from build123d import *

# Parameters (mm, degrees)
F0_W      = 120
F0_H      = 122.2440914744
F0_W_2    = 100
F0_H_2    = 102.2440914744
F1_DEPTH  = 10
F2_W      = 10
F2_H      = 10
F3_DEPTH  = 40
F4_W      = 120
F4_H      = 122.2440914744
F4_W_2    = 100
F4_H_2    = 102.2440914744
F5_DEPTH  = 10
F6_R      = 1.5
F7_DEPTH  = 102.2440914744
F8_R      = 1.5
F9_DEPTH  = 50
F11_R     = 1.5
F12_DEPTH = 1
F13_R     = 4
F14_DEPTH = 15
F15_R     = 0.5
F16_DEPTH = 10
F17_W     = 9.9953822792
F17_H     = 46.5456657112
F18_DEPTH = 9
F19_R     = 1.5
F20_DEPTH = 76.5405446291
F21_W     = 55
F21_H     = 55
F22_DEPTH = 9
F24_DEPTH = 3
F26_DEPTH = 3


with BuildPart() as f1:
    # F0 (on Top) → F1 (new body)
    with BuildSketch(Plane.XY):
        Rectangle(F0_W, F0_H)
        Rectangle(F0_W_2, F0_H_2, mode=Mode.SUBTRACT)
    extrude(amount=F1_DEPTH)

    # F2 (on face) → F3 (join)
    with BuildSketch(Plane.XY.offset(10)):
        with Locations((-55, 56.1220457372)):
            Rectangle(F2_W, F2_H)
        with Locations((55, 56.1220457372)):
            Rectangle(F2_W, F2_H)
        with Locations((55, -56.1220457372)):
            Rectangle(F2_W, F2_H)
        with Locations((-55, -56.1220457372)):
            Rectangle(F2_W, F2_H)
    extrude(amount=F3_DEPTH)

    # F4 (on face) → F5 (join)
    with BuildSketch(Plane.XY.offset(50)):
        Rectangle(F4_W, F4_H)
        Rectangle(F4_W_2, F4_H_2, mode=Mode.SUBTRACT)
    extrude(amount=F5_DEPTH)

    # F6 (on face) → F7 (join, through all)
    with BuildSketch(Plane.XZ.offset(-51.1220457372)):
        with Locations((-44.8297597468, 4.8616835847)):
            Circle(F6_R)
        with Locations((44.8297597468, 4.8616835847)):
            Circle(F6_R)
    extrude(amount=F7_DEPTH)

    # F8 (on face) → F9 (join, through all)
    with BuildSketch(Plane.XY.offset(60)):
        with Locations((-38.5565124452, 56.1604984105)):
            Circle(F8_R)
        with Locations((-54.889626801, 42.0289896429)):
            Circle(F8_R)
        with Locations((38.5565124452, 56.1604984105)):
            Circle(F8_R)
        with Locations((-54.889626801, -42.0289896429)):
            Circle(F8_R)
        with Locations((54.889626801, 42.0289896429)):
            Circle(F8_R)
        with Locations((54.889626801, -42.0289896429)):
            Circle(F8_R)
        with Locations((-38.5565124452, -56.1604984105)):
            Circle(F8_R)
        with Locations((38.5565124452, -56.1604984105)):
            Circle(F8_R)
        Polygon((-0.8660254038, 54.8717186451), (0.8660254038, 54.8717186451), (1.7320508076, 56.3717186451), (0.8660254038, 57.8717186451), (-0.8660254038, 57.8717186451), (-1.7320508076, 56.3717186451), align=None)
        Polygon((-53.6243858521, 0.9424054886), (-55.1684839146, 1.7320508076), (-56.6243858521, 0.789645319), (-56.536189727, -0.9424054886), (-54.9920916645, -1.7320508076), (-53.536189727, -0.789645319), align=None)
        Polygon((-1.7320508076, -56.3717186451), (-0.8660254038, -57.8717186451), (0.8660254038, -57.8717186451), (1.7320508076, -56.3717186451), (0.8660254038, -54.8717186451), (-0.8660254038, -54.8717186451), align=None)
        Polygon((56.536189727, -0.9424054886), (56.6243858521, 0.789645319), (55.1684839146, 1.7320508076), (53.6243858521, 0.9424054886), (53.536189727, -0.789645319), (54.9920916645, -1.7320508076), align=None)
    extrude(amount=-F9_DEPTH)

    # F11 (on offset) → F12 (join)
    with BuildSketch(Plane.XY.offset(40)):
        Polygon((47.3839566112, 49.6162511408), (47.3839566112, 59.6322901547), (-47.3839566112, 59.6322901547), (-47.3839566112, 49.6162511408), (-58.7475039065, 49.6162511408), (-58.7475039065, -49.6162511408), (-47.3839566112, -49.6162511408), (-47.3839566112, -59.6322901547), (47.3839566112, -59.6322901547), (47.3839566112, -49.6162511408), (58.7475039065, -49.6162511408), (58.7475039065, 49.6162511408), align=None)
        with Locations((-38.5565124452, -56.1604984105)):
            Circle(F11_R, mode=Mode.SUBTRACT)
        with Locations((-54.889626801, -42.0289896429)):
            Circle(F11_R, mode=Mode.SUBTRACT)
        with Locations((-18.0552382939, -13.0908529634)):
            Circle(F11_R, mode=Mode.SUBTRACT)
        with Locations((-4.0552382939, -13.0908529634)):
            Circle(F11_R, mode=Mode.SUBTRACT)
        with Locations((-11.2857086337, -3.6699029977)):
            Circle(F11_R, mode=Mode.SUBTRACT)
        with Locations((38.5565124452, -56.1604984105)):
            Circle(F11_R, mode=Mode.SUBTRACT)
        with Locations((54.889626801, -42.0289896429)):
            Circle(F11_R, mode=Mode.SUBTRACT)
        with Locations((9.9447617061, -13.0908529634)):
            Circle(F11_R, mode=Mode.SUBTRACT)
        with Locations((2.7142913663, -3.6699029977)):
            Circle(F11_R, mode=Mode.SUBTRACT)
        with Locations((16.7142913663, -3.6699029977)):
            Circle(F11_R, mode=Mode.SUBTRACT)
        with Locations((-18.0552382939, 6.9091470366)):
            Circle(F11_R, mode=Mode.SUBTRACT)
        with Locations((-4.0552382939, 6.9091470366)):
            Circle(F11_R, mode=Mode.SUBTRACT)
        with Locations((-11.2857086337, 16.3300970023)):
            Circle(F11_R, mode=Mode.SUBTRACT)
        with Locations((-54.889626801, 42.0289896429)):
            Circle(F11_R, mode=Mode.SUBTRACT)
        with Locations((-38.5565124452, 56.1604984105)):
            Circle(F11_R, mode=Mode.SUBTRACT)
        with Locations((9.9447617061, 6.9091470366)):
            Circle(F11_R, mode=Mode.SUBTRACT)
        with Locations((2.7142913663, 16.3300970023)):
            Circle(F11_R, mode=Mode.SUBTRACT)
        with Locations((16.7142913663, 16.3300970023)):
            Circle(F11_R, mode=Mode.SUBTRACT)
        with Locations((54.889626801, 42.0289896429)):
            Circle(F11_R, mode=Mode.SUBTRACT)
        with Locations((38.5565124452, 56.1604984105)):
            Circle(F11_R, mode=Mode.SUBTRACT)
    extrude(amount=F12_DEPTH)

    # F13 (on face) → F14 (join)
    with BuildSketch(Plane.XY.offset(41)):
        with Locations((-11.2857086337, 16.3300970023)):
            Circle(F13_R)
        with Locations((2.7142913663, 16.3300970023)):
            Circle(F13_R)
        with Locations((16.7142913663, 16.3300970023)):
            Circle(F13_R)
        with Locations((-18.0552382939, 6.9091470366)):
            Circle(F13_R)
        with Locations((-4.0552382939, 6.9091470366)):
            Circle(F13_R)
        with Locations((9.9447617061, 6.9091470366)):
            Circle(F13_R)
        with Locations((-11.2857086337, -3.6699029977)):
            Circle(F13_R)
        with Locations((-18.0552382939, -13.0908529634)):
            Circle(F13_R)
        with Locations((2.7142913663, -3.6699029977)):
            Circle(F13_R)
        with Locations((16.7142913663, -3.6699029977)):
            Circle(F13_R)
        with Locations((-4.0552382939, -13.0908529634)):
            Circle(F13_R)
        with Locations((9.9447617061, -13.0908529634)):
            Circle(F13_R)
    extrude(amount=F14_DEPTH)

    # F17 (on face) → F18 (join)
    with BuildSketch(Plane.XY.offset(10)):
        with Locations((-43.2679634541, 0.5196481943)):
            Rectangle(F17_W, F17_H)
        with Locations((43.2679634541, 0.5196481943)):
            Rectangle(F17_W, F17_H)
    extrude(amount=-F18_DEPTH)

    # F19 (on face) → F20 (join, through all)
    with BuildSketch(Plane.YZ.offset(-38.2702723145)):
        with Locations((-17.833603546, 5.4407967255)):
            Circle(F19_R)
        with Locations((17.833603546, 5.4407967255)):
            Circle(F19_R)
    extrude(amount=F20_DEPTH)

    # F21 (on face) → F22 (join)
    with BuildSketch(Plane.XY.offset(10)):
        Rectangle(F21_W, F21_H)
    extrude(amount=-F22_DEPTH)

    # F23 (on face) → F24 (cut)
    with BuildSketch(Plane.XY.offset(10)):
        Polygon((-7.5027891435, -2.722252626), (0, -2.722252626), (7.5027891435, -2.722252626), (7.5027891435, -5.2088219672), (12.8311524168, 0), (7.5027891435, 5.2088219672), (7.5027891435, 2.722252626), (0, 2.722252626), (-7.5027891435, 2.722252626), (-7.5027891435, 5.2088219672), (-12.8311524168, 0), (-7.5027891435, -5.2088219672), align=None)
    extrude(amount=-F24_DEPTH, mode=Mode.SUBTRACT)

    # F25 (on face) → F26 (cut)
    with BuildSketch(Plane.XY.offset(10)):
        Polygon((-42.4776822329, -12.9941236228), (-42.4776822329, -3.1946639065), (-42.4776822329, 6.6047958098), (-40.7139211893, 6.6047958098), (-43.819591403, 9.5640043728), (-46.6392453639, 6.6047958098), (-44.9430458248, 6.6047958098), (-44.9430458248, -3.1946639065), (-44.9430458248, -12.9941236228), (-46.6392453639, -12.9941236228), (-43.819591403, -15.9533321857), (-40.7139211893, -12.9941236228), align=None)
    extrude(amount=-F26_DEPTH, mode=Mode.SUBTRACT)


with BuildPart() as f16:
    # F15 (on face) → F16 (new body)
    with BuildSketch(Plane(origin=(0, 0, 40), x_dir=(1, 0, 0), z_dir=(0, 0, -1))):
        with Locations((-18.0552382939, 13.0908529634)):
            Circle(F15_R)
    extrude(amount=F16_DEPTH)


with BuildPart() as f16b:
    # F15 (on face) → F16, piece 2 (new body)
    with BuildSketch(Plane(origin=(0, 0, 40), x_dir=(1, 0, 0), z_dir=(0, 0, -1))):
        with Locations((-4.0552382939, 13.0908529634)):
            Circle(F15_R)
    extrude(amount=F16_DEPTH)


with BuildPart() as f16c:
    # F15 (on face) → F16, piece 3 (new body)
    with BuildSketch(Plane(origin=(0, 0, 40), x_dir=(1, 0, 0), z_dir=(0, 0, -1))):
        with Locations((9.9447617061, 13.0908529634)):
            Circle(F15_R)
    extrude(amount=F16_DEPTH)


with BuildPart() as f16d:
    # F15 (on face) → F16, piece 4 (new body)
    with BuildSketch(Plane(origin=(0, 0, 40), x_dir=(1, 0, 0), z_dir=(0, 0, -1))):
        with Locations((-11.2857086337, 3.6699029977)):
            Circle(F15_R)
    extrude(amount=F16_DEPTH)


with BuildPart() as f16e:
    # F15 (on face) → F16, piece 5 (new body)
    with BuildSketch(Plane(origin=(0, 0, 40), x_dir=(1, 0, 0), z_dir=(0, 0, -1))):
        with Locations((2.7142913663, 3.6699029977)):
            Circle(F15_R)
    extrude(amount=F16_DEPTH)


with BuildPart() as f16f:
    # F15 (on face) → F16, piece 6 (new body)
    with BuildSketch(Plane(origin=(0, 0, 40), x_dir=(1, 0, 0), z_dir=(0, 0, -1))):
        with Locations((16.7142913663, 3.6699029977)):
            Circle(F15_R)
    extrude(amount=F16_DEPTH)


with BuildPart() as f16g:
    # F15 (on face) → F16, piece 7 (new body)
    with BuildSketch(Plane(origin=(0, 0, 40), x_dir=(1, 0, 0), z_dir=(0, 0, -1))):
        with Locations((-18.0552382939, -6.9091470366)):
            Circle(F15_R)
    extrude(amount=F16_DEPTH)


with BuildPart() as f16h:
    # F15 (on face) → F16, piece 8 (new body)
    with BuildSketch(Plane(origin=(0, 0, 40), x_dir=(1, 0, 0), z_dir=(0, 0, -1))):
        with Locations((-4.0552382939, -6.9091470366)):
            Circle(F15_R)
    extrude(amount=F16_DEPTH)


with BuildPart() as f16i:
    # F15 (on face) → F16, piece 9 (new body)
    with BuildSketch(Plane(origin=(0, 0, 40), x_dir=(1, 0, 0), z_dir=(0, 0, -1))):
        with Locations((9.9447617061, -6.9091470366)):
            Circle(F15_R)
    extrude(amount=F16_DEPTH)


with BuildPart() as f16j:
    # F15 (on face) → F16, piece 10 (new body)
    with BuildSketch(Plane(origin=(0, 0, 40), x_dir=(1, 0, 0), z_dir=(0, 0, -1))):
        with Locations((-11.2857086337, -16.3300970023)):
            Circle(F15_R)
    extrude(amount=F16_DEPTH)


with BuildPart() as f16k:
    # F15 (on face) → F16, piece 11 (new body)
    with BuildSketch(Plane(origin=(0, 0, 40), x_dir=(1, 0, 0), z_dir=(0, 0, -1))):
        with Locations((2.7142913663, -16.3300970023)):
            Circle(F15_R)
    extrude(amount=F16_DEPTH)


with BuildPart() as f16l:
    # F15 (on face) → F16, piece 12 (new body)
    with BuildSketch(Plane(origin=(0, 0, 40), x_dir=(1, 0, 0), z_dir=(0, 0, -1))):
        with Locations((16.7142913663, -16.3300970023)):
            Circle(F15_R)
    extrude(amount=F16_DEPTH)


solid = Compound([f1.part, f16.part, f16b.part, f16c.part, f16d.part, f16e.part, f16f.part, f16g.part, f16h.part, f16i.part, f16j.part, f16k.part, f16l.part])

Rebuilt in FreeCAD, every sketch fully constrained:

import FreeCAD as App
import Part
import Sketcher
from FreeCAD import Vector
Q = App.Units.Quantity


def add_polygon(sketch, points):
    """Adds a closed chain of lines whose ends are joined by coincident constraints."""
    first, n = sketch.GeometryCount, len(points)
    for a, b in zip(points, points[1:] + points[:1]):
        sketch.addGeometry(Part.LineSegment(App.Vector(*a, 0), App.Vector(*b, 0)), False)
    for i in range(n):
        sketch.addConstraint(Sketcher.Constraint("Coincident", first + i, 2, first + (i + 1) % n, 1))

doc = App.newDocument("Part")
body = doc.addObject("PartDesign::Body", "Body")

# Sketch on XY plane
sketch1 = body.newObject("Sketcher::SketchObject", "Sketch")
sketch1.AttachmentSupport = (doc.getObject("XY_Plane"), [""])
sketch1.MapMode = "FlatFace"
add_polygon(sketch1, [(-60, 61.122046), (-60, -61.122046), (60, -61.122046), (60, 61.122046)])  # lines 0-3
add_polygon(sketch1, [(50, -51.122046), (-50, -51.122046), (-50, 51.122046), (50, 51.122046)])  # lines 4-7
sketch1.addConstraint([
    Sketcher.Constraint("Vertical", 0),
    Sketcher.Constraint("Horizontal", 1),
    Sketcher.Constraint("Vertical", 2),
    Sketcher.Constraint("Horizontal", 3),
    Sketcher.Constraint("Horizontal", 4),
    Sketcher.Constraint("Vertical", 5),
    Sketcher.Constraint("Horizontal", 6),
    Sketcher.Constraint("Vertical", 7),
    Sketcher.Constraint("Symmetric", 0, 2, 2, 2, -1, 1),
    Sketcher.Constraint("Symmetric", 4, 2, 6, 2, -1, 1),
    Sketcher.Constraint("DistanceX", 1, 1, 1, 2, 120.0),
    Sketcher.Constraint("DistanceX", 4, 2, 4, 1, 100.0),
    Sketcher.Constraint("DistanceY", 0, 2, 4, 2, 10.0),
    Sketcher.Constraint("DistanceY", 0, 2, 0, 1, 122.244091),
])
pad1 = body.newObject("PartDesign::Pad", "Pad")
pad1.Profile = sketch1
pad1.Length = 10

# Sketch on XY plane
sketch2 = body.newObject("Sketcher::SketchObject", "Sketch001")
sketch2.AttachmentSupport = (doc.getObject("XY_Plane"), [""])
sketch2.MapMode = "FlatFace"
sketch2.AttachmentOffset = App.Placement(Vector(0, 0, 10), App.Rotation())
add_polygon(sketch2, [(-60, 61.122046), (-60, 51.122046), (-50, 51.122046), (-50, 61.122046)])  # lines 0-3
add_polygon(sketch2, [(50, 61.122046), (50, 51.122046), (60, 51.122046), (60, 61.122046)])  # lines 4-7
add_polygon(sketch2, [(50, -51.122046), (50, -61.122046), (60, -61.122046), (60, -51.122046)])  # lines 8-11
add_polygon(sketch2, [(-60, -51.122046), (-60, -61.122046), (-50, -61.122046), (-50, -51.122046)])  # lines 12-15
sketch2.addConstraint([
    Sketcher.Constraint("Vertical", 0),
    Sketcher.Constraint("Horizontal", 1),
    Sketcher.Constraint("Vertical", 2),
    Sketcher.Constraint("Horizontal", 3),
    Sketcher.Constraint("Vertical", 4),
    Sketcher.Constraint("Horizontal", 5),
    Sketcher.Constraint("Vertical", 6),
    Sketcher.Constraint("Horizontal", 7),
    Sketcher.Constraint("Vertical", 8),
    Sketcher.Constraint("Horizontal", 9),
    Sketcher.Constraint("Vertical", 10),
    Sketcher.Constraint("Horizontal", 11),
    Sketcher.Constraint("Vertical", 12),
    Sketcher.Constraint("Horizontal", 13),
    Sketcher.Constraint("Vertical", 14),
    Sketcher.Constraint("Horizontal", 15),
    Sketcher.Constraint("Symmetric", 2, 2, 8, 2, -1, 1),
    Sketcher.Constraint("Symmetric", 0, 2, 10, 2, -1, 1),
    Sketcher.Constraint("Symmetric", 6, 2, 12, 2, -1, 1),
    Sketcher.Constraint("Symmetric", 4, 2, 14, 2, -1, 1),
    Sketcher.Constraint("Symmetric", 1, 2, 4, 2, -2),
    Sketcher.Constraint("Symmetric", 3, 2, 6, 2, -2),
    Sketcher.Constraint("Equal", 15, 0),
    Sketcher.Constraint("DistanceX", 1, 1, 1, 2, 10.0),
    Sketcher.Constraint("DistanceX", 0, 2, -1, 1, 60.0),
    Sketcher.Constraint("DistanceY", 8, 2, 4, 2, 112.244091),
])
pad2 = body.newObject("PartDesign::Pad", "Pad001")
pad2.Profile = sketch2
pad2.Length = 40

# Sketch on XY plane
sketch3 = body.newObject("Sketcher::SketchObject", "Sketch002")
sketch3.AttachmentSupport = (doc.getObject("XY_Plane"), [""])
sketch3.MapMode = "FlatFace"
sketch3.AttachmentOffset = App.Placement(Vector(0, 0, 50), App.Rotation())
add_polygon(sketch3, [(-60, 61.122046), (-60, -61.122046), (60, -61.122046), (60, 61.122046)])  # lines 0-3
add_polygon(sketch3, [(50, -51.122046), (-50, -51.122046), (-50, 51.122046), (50, 51.122046)])  # lines 4-7
sketch3.addConstraint([
    Sketcher.Constraint("Vertical", 0),
    Sketcher.Constraint("Horizontal", 1),
    Sketcher.Constraint("Vertical", 2),
    Sketcher.Constraint("Horizontal", 3),
    Sketcher.Constraint("Horizontal", 4),
    Sketcher.Constraint("Vertical", 5),
    Sketcher.Constraint("Horizontal", 6),
    Sketcher.Constraint("Vertical", 7),
    Sketcher.Constraint("Symmetric", 0, 2, 2, 2, -1, 1),
    Sketcher.Constraint("Symmetric", 4, 2, 6, 2, -1, 1),
    Sketcher.Constraint("DistanceX", 1, 1, 1, 2, 120.0),
    Sketcher.Constraint("DistanceX", 4, 2, 4, 1, 100.0),
    Sketcher.Constraint("DistanceY", 0, 2, 4, 2, 10.0),
    Sketcher.Constraint("DistanceY", 0, 2, 0, 1, 122.244091),
])
pad3 = body.newObject("PartDesign::Pad", "Pad002")
pad3.Profile = sketch3
pad3.Length = 10

# Sketch on XZ plane
sketch4 = body.newObject("Sketcher::SketchObject", "Sketch003")
sketch4.AttachmentSupport = (doc.getObject("XZ_Plane"), [""])
sketch4.MapMode = "FlatFace"
sketch4.AttachmentOffset = App.Placement(Vector(0, 0, -51.122046), App.Rotation())
sketch4.addGeometry([
    Part.Circle(Vector(-44.82976, 4.861684, 0), Vector(0, 0, 1), 1.5),
    Part.Circle(Vector(44.82976, 4.861684, 0), Vector(0, 0, 1), 1.5),
], False)
sketch4.addConstraint([
    Sketcher.Constraint("Equal", 0, 1),
    Sketcher.Constraint("Symmetric", 0, 3, 1, 3, -2),
    Sketcher.Constraint("Diameter", 0, 3.0),
    Sketcher.Constraint("DistanceX", 0, 3, -1, 1, 44.82976),
    Sketcher.Constraint("DistanceY", -1, 1, 0, 3, 4.861684),
])
pad4 = body.newObject("PartDesign::Pad", "Pad003")
pad4.Profile = sketch4
pad4.Type = "UpToLast"

# Sketch on XY plane
sketch5 = body.newObject("Sketcher::SketchObject", "Sketch004")
sketch5.AttachmentSupport = (doc.getObject("XY_Plane"), [""])
sketch5.MapMode = "FlatFace"
sketch5.AttachmentOffset = App.Placement(Vector(0, 0, 60), App.Rotation())
sketch5.addGeometry(Part.Circle(Vector(-38.556512, 56.160498, 0), Vector(0, 0, 1), 1.5), False)  # 0
sketch5.addGeometry(Part.Circle(Vector(-54.889627, 42.02899, 0), Vector(0, 0, 1), 1.5), False)  # 1
sketch5.addGeometry(Part.Circle(Vector(38.556512, 56.160498, 0), Vector(0, 0, 1), 1.5), False)  # 2
sketch5.addGeometry(Part.Circle(Vector(-54.889627, -42.02899, 0), Vector(0, 0, 1), 1.5), False)  # 3
sketch5.addGeometry(Part.Circle(Vector(54.889627, 42.02899, 0), Vector(0, 0, 1), 1.5), False)  # 4
sketch5.addGeometry(Part.Circle(Vector(54.889627, -42.02899, 0), Vector(0, 0, 1), 1.5), False)  # 5
sketch5.addGeometry(Part.Circle(Vector(-38.556512, -56.160498, 0), Vector(0, 0, 1), 1.5), False)  # 6
sketch5.addGeometry(Part.Circle(Vector(38.556512, -56.160498, 0), Vector(0, 0, 1), 1.5), False)  # 7
add_polygon(sketch5, [(-0.866025, 54.871719), (0.866025, 54.871719), (1.732051, 56.371719), (0.866025, 57.871719), (-0.866025, 57.871719), (-1.732051, 56.371719)])  # lines 8-13
add_polygon(sketch5, [(-53.624386, 0.942405), (-55.168484, 1.732051), (-56.624386, 0.789645), (-56.53619, -0.942405), (-54.992092, -1.732051), (-53.53619, -0.789645)])  # lines 14-19
add_polygon(sketch5, [(-1.732051, -56.371719), (-0.866025, -57.871719), (0.866025, -57.871719), (1.732051, -56.371719), (0.866025, -54.871719), (-0.866025, -54.871719)])  # lines 20-25
add_polygon(sketch5, [(56.53619, -0.942405), (56.624386, 0.789645), (55.168484, 1.732051), (53.624386, 0.942405), (53.53619, -0.789645), (54.992092, -1.732051)])  # lines 26-31
sketch5.addConstraint([
    Sketcher.Constraint("Horizontal", 8),
    Sketcher.Constraint("Horizontal", 11),
    Sketcher.Constraint("Horizontal", 21),
    Sketcher.Constraint("Horizontal", 24),
    Sketcher.Constraint("Equal", 0, 1),
    Sketcher.Constraint("Equal", 1, 2),
    Sketcher.Constraint("Equal", 2, 3),
    Sketcher.Constraint("Equal", 3, 4),
    Sketcher.Constraint("Equal", 4, 5),
    Sketcher.Constraint("Equal", 5, 6),
    Sketcher.Constraint("Equal", 6, 7),
    Sketcher.Constraint("Symmetric", 3, 3, 4, 3, -1, 1),
    Sketcher.Constraint("Symmetric", 1, 3, 5, 3, -1, 1),
    Sketcher.Constraint("Symmetric", 2, 3, 6, 3, -1, 1),
    Sketcher.Constraint("Symmetric", 0, 3, 7, 3, -1, 1),
    Sketcher.Constraint("Symmetric", 10, 2, 20, 2, -1, 1),
    Sketcher.Constraint("Symmetric", 12, 2, 22, 2, -1, 1),
    Sketcher.Constraint("Symmetric", 13, 2, 23, 2, -1, 1),
    Sketcher.Constraint("Symmetric", 9, 2, 25, 2, -1, 1),
    Sketcher.Constraint("Symmetric", 0, 3, 2, 3, -2),
    Sketcher.Constraint("Symmetric", 1, 3, 4, 3, -2),
    Sketcher.Constraint("Symmetric", 9, 2, 12, 2, -2),
    Sketcher.Constraint("Symmetric", 15, 2, 26, 2, -2),
    Sketcher.Constraint("Symmetric", 14, 2, 27, 2, -2),
    Sketcher.Constraint("Symmetric", 19, 2, 28, 2, -2),
    Sketcher.Constraint("Symmetric", 18, 2, 29, 2, -2),
    Sketcher.Constraint("Symmetric", 17, 2, 30, 2, -2),
    Sketcher.Constraint("Symmetric", 16, 2, 31, 2, -2),
    Sketcher.Constraint("Parallel", 9, 12),
    Sketcher.Constraint("Parallel", 10, 13),
    Sketcher.Constraint("Parallel", 14, 17),
    Sketcher.Constraint("Parallel", 15, 18),
    Sketcher.Constraint("Parallel", 16, 19),
    Sketcher.Constraint("Parallel", 12, 22),
    Sketcher.Constraint("Parallel", 22, 25),
    Sketcher.Constraint("Vertical", 8, 2, 10, 2),
    Sketcher.Constraint("Vertical", 11, 2, 13, 2),
    Sketcher.Constraint("Equal", 14, 15),
    Sketcher.Constraint("Equal", 15, 16),
    Sketcher.Constraint("Equal", 16, 17),
    Sketcher.Constraint("Diameter", 0, 3.0),
    Sketcher.Constraint("Angle", 9, Q("60 deg")),
    Sketcher.Constraint("DistanceY", 8, 2, 10, 2, 3.0),
    Sketcher.Constraint("DistanceX", 16, 2, 18, 2, 3.0),
    Sketcher.Constraint("DistanceX", 8, 1, 8, 2, 1.732051),
    Sketcher.Constraint("DistanceY", -1, 1, 0, 3, 56.160498),
    Sketcher.Constraint("DistanceX", 8, 2, 4, 3, 54.023601),
    Sketcher.Constraint("DistanceX", 15, 2, 14, 2, 1.455902),
    Sketcher.Constraint("DistanceY", 17, 2, 14, 2, 3.464102),
    Sketcher.Constraint("DistanceY", -1, 1, 1, 3, 42.02899),
    Sketcher.Constraint("DistanceY", -1, 1, 8, 2, 54.871719),
    Sketcher.Constraint("DistanceY", -1, 1, 14, 2, 1.732051),
    Sketcher.Constraint("DistanceX", 16, 2, -1, 1, 56.53619),
    Sketcher.Constraint("DistanceX", 1, 3, 2, 3, 93.446139),
    Sketcher.Constraint("DistanceX", 14, 2, 0, 3, 16.611971),
])
pad5 = body.newObject("PartDesign::Pad", "Pad004")
pad5.Profile = sketch5
pad5.Length = 50
pad5.Reversed = True

# Sketch on XY plane
sketch6 = body.newObject("Sketcher::SketchObject", "Sketch005")
sketch6.AttachmentSupport = (doc.getObject("XY_Plane"), [""])
sketch6.MapMode = "FlatFace"
sketch6.AttachmentOffset = App.Placement(Vector(0, 0, 40), App.Rotation())
add_polygon(sketch6, [(47.383957, 49.616251), (47.383957, 59.63229), (-47.383957, 59.63229), (-47.383957, 49.616251), (-58.747504, 49.616251), (-58.747504, -49.616251), (-47.383957, -49.616251), (-47.383957, -59.63229), (47.383957, -59.63229), (47.383957, -49.616251), (58.747504, -49.616251), (58.747504, 49.616251)])  # lines 0-11
sketch6.addGeometry(Part.Circle(Vector(-38.556512, -56.160498, 0), Vector(0, 0, 1), 1.5), False)  # 12
sketch6.addGeometry(Part.Circle(Vector(-54.889627, -42.02899, 0), Vector(0, 0, 1), 1.5), False)  # 13
sketch6.addGeometry(Part.Circle(Vector(-18.055238, -13.090853, 0), Vector(0, 0, 1), 1.5), False)  # 14
sketch6.addGeometry(Part.Circle(Vector(-4.055238, -13.090853, 0), Vector(0, 0, 1), 1.5), False)  # 15
sketch6.addGeometry(Part.Circle(Vector(-11.285709, -3.669903, 0), Vector(0, 0, 1), 1.5), False)  # 16
sketch6.addGeometry(Part.Circle(Vector(38.556512, -56.160498, 0), Vector(0, 0, 1), 1.5), False)  # 17
sketch6.addGeometry(Part.Circle(Vector(54.889627, -42.02899, 0), Vector(0, 0, 1), 1.5), False)  # 18
sketch6.addGeometry(Part.Circle(Vector(9.944762, -13.090853, 0), Vector(0, 0, 1), 1.5), False)  # 19
sketch6.addGeometry(Part.Circle(Vector(2.714291, -3.669903, 0), Vector(0, 0, 1), 1.5), False)  # 20
sketch6.addGeometry(Part.Circle(Vector(16.714291, -3.669903, 0), Vector(0, 0, 1), 1.5), False)  # 21
sketch6.addGeometry(Part.Circle(Vector(-18.055238, 6.909147, 0), Vector(0, 0, 1), 1.5), False)  # 22
sketch6.addGeometry(Part.Circle(Vector(-4.055238, 6.909147, 0), Vector(0, 0, 1), 1.5), False)  # 23
sketch6.addGeometry(Part.Circle(Vector(-11.285709, 16.330097, 0), Vector(0, 0, 1), 1.5), False)  # 24
sketch6.addGeometry(Part.Circle(Vector(-54.889627, 42.02899, 0), Vector(0, 0, 1), 1.5), False)  # 25
sketch6.addGeometry(Part.Circle(Vector(-38.556512, 56.160498, 0), Vector(0, 0, 1), 1.5), False)  # 26
sketch6.addGeometry(Part.Circle(Vector(9.944762, 6.909147, 0), Vector(0, 0, 1), 1.5), False)  # 27
sketch6.addGeometry(Part.Circle(Vector(2.714291, 16.330097, 0), Vector(0, 0, 1), 1.5), False)  # 28
sketch6.addGeometry(Part.Circle(Vector(16.714291, 16.330097, 0), Vector(0, 0, 1), 1.5), False)  # 29
sketch6.addGeometry(Part.Circle(Vector(54.889627, 42.02899, 0), Vector(0, 0, 1), 1.5), False)  # 30
sketch6.addGeometry(Part.Circle(Vector(38.556512, 56.160498, 0), Vector(0, 0, 1), 1.5), False)  # 31
sketch6.addConstraint([
    Sketcher.Constraint("Vertical", 0),
    Sketcher.Constraint("Horizontal", 1),
    Sketcher.Constraint("Vertical", 2),
    Sketcher.Constraint("Horizontal", 3),
    Sketcher.Constraint("Vertical", 4),
    Sketcher.Constraint("Horizontal", 5),
    Sketcher.Constraint("Vertical", 6),
    Sketcher.Constraint("Horizontal", 7),
    Sketcher.Constraint("Vertical", 8),
    Sketcher.Constraint("Horizontal", 9),
    Sketcher.Constraint("Vertical", 10),
    Sketcher.Constraint("Horizontal", 11),
    Sketcher.Constraint("Equal", 12, 13),
    Sketcher.Constraint("Equal", 13, 14),
    Sketcher.Constraint("Equal", 14, 15),
    Sketcher.Constraint("Equal", 15, 16),
    Sketcher.Constraint("Equal", 16, 17),
    Sketcher.Constraint("Equal", 17, 18),
    Sketcher.Constraint("Equal", 18, 19),
    Sketcher.Constraint("Equal", 19, 20),
    Sketcher.Constraint("Equal", 20, 21),
    Sketcher.Constraint("Equal", 21, 22),
    Sketcher.Constraint("Equal", 22, 23),
    Sketcher.Constraint("Equal", 23, 24),
    Sketcher.Constraint("Equal", 24, 25),
    Sketcher.Constraint("Equal", 25, 26),
    Sketcher.Constraint("Equal", 26, 27),
    Sketcher.Constraint("Equal", 27, 28),
    Sketcher.Constraint("Equal", 28, 29),
    Sketcher.Constraint("Equal", 29, 30),
    Sketcher.Constraint("Equal", 30, 31),
    Sketcher.Constraint("Symmetric", 18, 3, 25, 3, -1, 1),
    Sketcher.Constraint("Symmetric", 17, 3, 26, 3, -1, 1),
    Sketcher.Constraint("Symmetric", 13, 3, 30, 3, -1, 1),
    Sketcher.Constraint("Symmetric", 12, 3, 31, 3, -1, 1),
    Sketcher.Constraint("Symmetric", 0, 2, 6, 2, -1, 1),
    Sketcher.Constraint("Symmetric", 2, 2, 8, 2, -1, 1),
    Sketcher.Constraint("Symmetric", 4, 2, 10, 2, -1, 1),
    Sketcher.Constraint("Symmetric", 12, 3, 17, 3, -2),
    Sketcher.Constraint("Symmetric", 13, 3, 18, 3, -2),
    Sketcher.Constraint("Symmetric", 5, 2, 8, 2, -2),
    Sketcher.Constraint("Horizontal", 14, 3, 15, 3),
    Sketcher.Constraint("Horizontal", 15, 3, 19, 3),
    Sketcher.Constraint("Horizontal", 16, 3, 20, 3),
    Sketcher.Constraint("Horizontal", 20, 3, 21, 3),
    Sketcher.Constraint("Horizontal", 22, 3, 23, 3),
    Sketcher.Constraint("Horizontal", 23, 3, 27, 3),
    Sketcher.Constraint("Horizontal", 24, 3, 28, 3),
    Sketcher.Constraint("Horizontal", 28, 3, 29, 3),
    Sketcher.Constraint("Vertical", 14, 3, 22, 3),
    Sketcher.Constraint("Vertical", 15, 3, 23, 3),
    Sketcher.Constraint("Vertical", 16, 3, 24, 3),
    Sketcher.Constraint("Vertical", 19, 3, 27, 3),
    Sketcher.Constraint("Vertical", 20, 3, 28, 3),
    Sketcher.Constraint("Vertical", 21, 3, 29, 3),
    Sketcher.Constraint("Diameter", 12, 3.0),
    Sketcher.Constraint("DistanceX", 14, 3, 15, 3, 14.0),
    Sketcher.Constraint("DistanceX", 15, 3, 19, 3, 14.0),
    Sketcher.Constraint("DistanceX", 16, 3, 20, 3, 14.0),
    Sketcher.Constraint("DistanceX", 20, 3, 21, 3, 14.0),
    Sketcher.Constraint("DistanceY", 14, 3, 22, 3, 20.0),
    Sketcher.Constraint("DistanceY", 16, 3, 24, 3, 20.0),
    Sketcher.Constraint("DistanceY", 0, 1, 0, 2, 10.016039),
    Sketcher.Constraint("DistanceY", 12, 3, -1, 1, 56.160498),
    Sketcher.Constraint("DistanceY", 24, 3, 26, 3, 39.830401),
    Sketcher.Constraint("DistanceY", 30, 3, 0, 2, 17.603301),
    Sketcher.Constraint("DistanceY", 4, 2, 14, 3, 36.525398),
    Sketcher.Constraint("DistanceX", 1, 2, 1, 1, 94.767913),
    Sketcher.Constraint("DistanceX", 3, 2, 3, 1, 11.363547),
    Sketcher.Constraint("DistanceY", 4, 2, 4, 1, 99.232502),
    Sketcher.Constraint("DistanceX", 14, 3, -1, 1, 18.055238),
    Sketcher.Constraint("DistanceX", 16, 3, -1, 1, 11.285709),
    Sketcher.Constraint("DistanceX", 13, 3, 14, 3, 36.834389),
    Sketcher.Constraint("DistanceX", 15, 3, 17, 3, 42.611751),
])
pad6 = body.newObject("PartDesign::Pad", "Pad005")
pad6.Profile = sketch6
pad6.Length = 1

# Sketch on XY plane
sketch7 = body.newObject("Sketcher::SketchObject", "Sketch006")
sketch7.AttachmentSupport = (doc.getObject("XY_Plane"), [""])
sketch7.MapMode = "FlatFace"
sketch7.AttachmentOffset = App.Placement(Vector(0, 0, 41), App.Rotation())
sketch7.addGeometry([
    Part.Circle(Vector(-11.285709, 16.330097, 0), Vector(0, 0, 1), 4),  # 0
    Part.Circle(Vector(2.714291, 16.330097, 0), Vector(0, 0, 1), 4),  # 1
    Part.Circle(Vector(16.714291, 16.330097, 0), Vector(0, 0, 1), 4),  # 2
    Part.Circle(Vector(-18.055238, 6.909147, 0), Vector(0, 0, 1), 4),  # 3
    Part.Circle(Vector(-4.055238, 6.909147, 0), Vector(0, 0, 1), 4),  # 4
    Part.Circle(Vector(9.944762, 6.909147, 0), Vector(0, 0, 1), 4),  # 5
    Part.Circle(Vector(-11.285709, -3.669903, 0), Vector(0, 0, 1), 4),  # 6
    Part.Circle(Vector(-18.055238, -13.090853, 0), Vector(0, 0, 1), 4),  # 7
    Part.Circle(Vector(2.714291, -3.669903, 0), Vector(0, 0, 1), 4),  # 8
    Part.Circle(Vector(16.714291, -3.669903, 0), Vector(0, 0, 1), 4),  # 9
    Part.Circle(Vector(-4.055238, -13.090853, 0), Vector(0, 0, 1), 4),  # 10
    Part.Circle(Vector(9.944762, -13.090853, 0), Vector(0, 0, 1), 4),  # 11
], False)
sketch7.addConstraint([
    Sketcher.Constraint("Equal", 0, 1),
    Sketcher.Constraint("Equal", 1, 2),
    Sketcher.Constraint("Equal", 2, 3),
    Sketcher.Constraint("Equal", 3, 4),
    Sketcher.Constraint("Equal", 4, 5),
    Sketcher.Constraint("Equal", 5, 6),
    Sketcher.Constraint("Equal", 6, 7),
    Sketcher.Constraint("Equal", 7, 8),
    Sketcher.Constraint("Equal", 8, 9),
    Sketcher.Constraint("Equal", 9, 10),
    Sketcher.Constraint("Equal", 10, 11),
    Sketcher.Constraint("Horizontal", 0, 3, 1, 3),
    Sketcher.Constraint("Horizontal", 1, 3, 2, 3),
    Sketcher.Constraint("Horizontal", 3, 3, 4, 3),
    Sketcher.Constraint("Horizontal", 4, 3, 5, 3),
    Sketcher.Constraint("Horizontal", 6, 3, 8, 3),
    Sketcher.Constraint("Horizontal", 8, 3, 9, 3),
    Sketcher.Constraint("Horizontal", 7, 3, 10, 3),
    Sketcher.Constraint("Horizontal", 10, 3, 11, 3),
    Sketcher.Constraint("Vertical", 0, 3, 6, 3),
    Sketcher.Constraint("Vertical", 3, 3, 7, 3),
    Sketcher.Constraint("Vertical", 1, 3, 8, 3),
    Sketcher.Constraint("Vertical", 2, 3, 9, 3),
    Sketcher.Constraint("Vertical", 4, 3, 10, 3),
    Sketcher.Constraint("Vertical", 5, 3, 11, 3),
    Sketcher.Constraint("Diameter", 0, 8.0),
    Sketcher.Constraint("DistanceX", 0, 3, 1, 3, 14.0),
    Sketcher.Constraint("DistanceX", 1, 3, 2, 3, 14.0),
    Sketcher.Constraint("DistanceX", 3, 3, 4, 3, 14.0),
    Sketcher.Constraint("DistanceX", 4, 3, 5, 3, 14.0),
    Sketcher.Constraint("DistanceY", 6, 3, 0, 3, 20.0),
    Sketcher.Constraint("DistanceY", 7, 3, 3, 3, 20.0),
    Sketcher.Constraint("DistanceX", 0, 3, -1, 1, 11.285709),
    Sketcher.Constraint("DistanceX", 3, 3, -1, 1, 18.055238),
    Sketcher.Constraint("DistanceY", 3, 3, 0, 3, 9.42095),
    Sketcher.Constraint("DistanceY", -1, 1, 0, 3, 16.330097),
])
pad7 = body.newObject("PartDesign::Pad", "Pad006")
pad7.Profile = sketch7
pad7.Length = 15

# Sketch on XY plane
sketch8 = body.newObject("Sketcher::SketchObject", "Sketch007")
sketch8.AttachmentSupport = (doc.getObject("XY_Plane"), [""])
sketch8.MapMode = "FlatFace"
sketch8.AttachmentOffset = App.Placement(Vector(0, 0, 10), App.Rotation())
add_polygon(sketch8, [(-48.265655, 23.792481), (-48.265655, -22.753185), (-38.270272, -22.753185), (-38.270272, 23.792481)])  # lines 0-3
add_polygon(sketch8, [(38.270272, 23.792481), (38.270272, -22.753185), (48.265655, -22.753185), (48.265655, 23.792481)])  # lines 4-7
sketch8.addConstraint([
    Sketcher.Constraint("Vertical", 0),
    Sketcher.Constraint("Horizontal", 1),
    Sketcher.Constraint("Vertical", 2),
    Sketcher.Constraint("Horizontal", 3),
    Sketcher.Constraint("Vertical", 4),
    Sketcher.Constraint("Horizontal", 5),
    Sketcher.Constraint("Vertical", 6),
    Sketcher.Constraint("Horizontal", 7),
    Sketcher.Constraint("Symmetric", 1, 2, 4, 2, -2),
    Sketcher.Constraint("Symmetric", 3, 2, 6, 2, -2),
    Sketcher.Constraint("DistanceX", 1, 1, 1, 2, 9.995382),
    Sketcher.Constraint("DistanceY", 0, 2, 0, 1, 46.545666),
    Sketcher.Constraint("DistanceY", -1, 1, 2, 2, 23.792481),
    Sketcher.Constraint("DistanceX", 0, 2, 5, 2, 96.531309),
])
pad8 = body.newObject("PartDesign::Pad", "Pad007")
pad8.Profile = sketch8
pad8.Length = 9
pad8.Reversed = True

# Sketch on YZ plane
sketch9 = body.newObject("Sketcher::SketchObject", "Sketch008")
sketch9.AttachmentSupport = (doc.getObject("YZ_Plane"), [""])
sketch9.MapMode = "FlatFace"
sketch9.AttachmentOffset = App.Placement(Vector(0, 0, -38.270272), App.Rotation())
sketch9.addGeometry([
    Part.Circle(Vector(-17.833604, 5.440797, 0), Vector(0, 0, 1), 1.5),
    Part.Circle(Vector(17.833604, 5.440797, 0), Vector(0, 0, 1), 1.5),
], False)
sketch9.addConstraint([
    Sketcher.Constraint("Equal", 0, 1),
    Sketcher.Constraint("Symmetric", 0, 3, 1, 3, -2),
    Sketcher.Constraint("Diameter", 0, 3.0),
    Sketcher.Constraint("DistanceX", 0, 3, -1, 1, 17.833604),
    Sketcher.Constraint("DistanceY", -1, 1, 0, 3, 5.440797),
])
pad9 = body.newObject("PartDesign::Pad", "Pad008")
pad9.Profile = sketch9
pad9.Length = 76.540545

# Sketch on XY plane
sketch10 = body.newObject("Sketcher::SketchObject", "Sketch009")
sketch10.AttachmentSupport = (doc.getObject("XY_Plane"), [""])
sketch10.MapMode = "FlatFace"
sketch10.AttachmentOffset = App.Placement(Vector(0, 0, 10), App.Rotation())
add_polygon(sketch10, [(-27.5, 27.5), (-27.5, -27.5), (27.5, -27.5), (27.5, 27.5)])  # lines 0-3
sketch10.addConstraint([
    Sketcher.Constraint("Vertical", 0),
    Sketcher.Constraint("Horizontal", 1),
    Sketcher.Constraint("Vertical", 2),
    Sketcher.Constraint("Horizontal", 3),
    Sketcher.Constraint("Symmetric", 0, 2, 2, 2, -1, 1),
    Sketcher.Constraint("Equal", 3, 0),
    Sketcher.Constraint("DistanceX", 1, 1, 1, 2, 55.0),
])
pad10 = body.newObject("PartDesign::Pad", "Pad009")
pad10.Profile = sketch10
pad10.Length = 9
pad10.Reversed = True

# Sketch on XY plane
sketch11 = body.newObject("Sketcher::SketchObject", "Sketch010")
sketch11.AttachmentSupport = (doc.getObject("XY_Plane"), [""])
sketch11.MapMode = "FlatFace"
sketch11.AttachmentOffset = App.Placement(Vector(0, 0, 10), App.Rotation())
add_polygon(sketch11, [(-7.502789, -2.722253), (7.502789, -2.722253), (7.502789, -5.208822), (12.831152, 0), (7.502789, 5.208822), (7.502789, 2.722253), (-7.502789, 2.722253), (-7.502789, 5.208822), (-12.831152, 0), (-7.502789, -5.208822)])  # lines 0-9
sketch11.addConstraint([
    Sketcher.Constraint("Horizontal", 0),
    Sketcher.Constraint("Vertical", 1),
    Sketcher.Constraint("Vertical", 4),
    Sketcher.Constraint("Horizontal", 5),
    Sketcher.Constraint("Vertical", 6),
    Sketcher.Constraint("Vertical", 9),
    Sketcher.Constraint("Symmetric", 0, 2, 5, 2, -1, 1),
    Sketcher.Constraint("Symmetric", 2, 2, 7, 2, -1, 1),
    Sketcher.Constraint("Symmetric", 3, 2, 8, 2, -1, 1),
    Sketcher.Constraint("Symmetric", 3, 2, 6, 2, -2),
    Sketcher.Constraint("PointOnObject", 2, 2, -1),
    Sketcher.Constraint("Parallel", 2, 7),
    Sketcher.Constraint("DistanceX", 0, 1, 0, 2, 15.005578),
    Sketcher.Constraint("DistanceY", 1, 2, 1, 1, 2.486569),
    Sketcher.Constraint("DistanceY", 1, 2, -1, 1, 5.208822),
    Sketcher.Constraint("DistanceX", 5, 2, 2, 2, 20.333942),
])
pocket1 = body.newObject("PartDesign::Pocket", "Pocket")
pocket1.Profile = sketch11
pocket1.Length = 3

# Sketch on XY plane
sketch12 = body.newObject("Sketcher::SketchObject", "Sketch011")
sketch12.AttachmentSupport = (doc.getObject("XY_Plane"), [""])
sketch12.MapMode = "FlatFace"
sketch12.AttachmentOffset = App.Placement(Vector(0, 0, 10), App.Rotation())
add_polygon(sketch12, [(-42.477682, -12.994124), (-42.477682, 6.604796), (-40.713921, 6.604796), (-43.819591, 9.564004), (-46.639245, 6.604796), (-44.943046, 6.604796), (-44.943046, -12.994124), (-46.639245, -12.994124), (-43.819591, -15.953332), (-40.713921, -12.994124)])  # lines 0-9
sketch12.addConstraint([
    Sketcher.Constraint("Vertical", 0),
    Sketcher.Constraint("Horizontal", 1),
    Sketcher.Constraint("Horizontal", 4),
    Sketcher.Constraint("Vertical", 5),
    Sketcher.Constraint("Horizontal", 6),
    Sketcher.Constraint("Horizontal", 9),
    Sketcher.Constraint("Perpendicular", 2, 3),
    Sketcher.Constraint("Perpendicular", 7, 8),
    Sketcher.Constraint("Horizontal", 1, 2, 3, 2),
    Sketcher.Constraint("Horizontal", 6, 2, 8, 2),
    Sketcher.Constraint("Vertical", 3, 2, 6, 2),
    Sketcher.Constraint("Vertical", 2, 2, 7, 2),
    Sketcher.Constraint("Vertical", 1, 2, 8, 2),
    Sketcher.Constraint("DistanceX", 4, 1, 4, 2, 1.6962),
    Sketcher.Constraint("DistanceX", 1, 1, 1, 2, 1.763761),
    Sketcher.Constraint("DistanceY", 0, 1, 0, 2, 19.598919),
    Sketcher.Constraint("DistanceX", 1, 2, -1, 1, 40.713921),
    Sketcher.Constraint("DistanceX", 2, 2, -1, 1, 43.819591),
    Sketcher.Constraint("DistanceY", 0, 2, 2, 2, 2.959209),
    Sketcher.Constraint("DistanceY", -1, 1, 0, 2, 6.604796),
])
pocket2 = body.newObject("PartDesign::Pocket", "Pocket001")
pocket2.Profile = sketch12
pocket2.Length = 3
body2 = doc.addObject("PartDesign::Body", "Body001")

# Sketch on XY plane
sketch13 = body2.newObject("Sketcher::SketchObject", "Sketch012")
sketch13.AttachmentSupport = (doc.getObject("XY_Plane001"), [""])
sketch13.MapMode = "FlatFace"
sketch13.AttachmentOffset = App.Placement(Vector(0, 0, 40), App.Rotation())
sketch13.addGeometry(Part.Circle(Vector(-18.055238, -13.090853, 0), Vector(0, 0, 1), 0.5), False)
sketch13.addConstraint([
    Sketcher.Constraint("Diameter", 0, 1.0),
    Sketcher.Constraint("DistanceX", 0, 3, -1, 1, 18.055238),
    Sketcher.Constraint("DistanceY", 0, 3, -1, 1, 13.090853),
])
pad11 = body2.newObject("PartDesign::Pad", "Pad010")
pad11.Profile = sketch13
pad11.Length = 10
pad11.Reversed = True
body3 = doc.addObject("PartDesign::Body", "Body002")

# Sketch on XY plane
sketch14 = body3.newObject("Sketcher::SketchObject", "Sketch013")
sketch14.AttachmentSupport = (doc.getObject("XY_Plane002"), [""])
sketch14.MapMode = "FlatFace"
sketch14.AttachmentOffset = App.Placement(Vector(0, 0, 40), App.Rotation())
sketch14.addGeometry(Part.Circle(Vector(-4.055238, -13.090853, 0), Vector(0, 0, 1), 0.5), False)
sketch14.addConstraint([
    Sketcher.Constraint("Diameter", 0, 1.0),
    Sketcher.Constraint("DistanceX", 0, 3, -1, 1, 4.055238),
    Sketcher.Constraint("DistanceY", 0, 3, -1, 1, 13.090853),
])
pad12 = body3.newObject("PartDesign::Pad", "Pad011")
pad12.Profile = sketch14
pad12.Length = 10
pad12.Reversed = True
body4 = doc.addObject("PartDesign::Body", "Body003")

# Sketch on XY plane
sketch15 = body4.newObject("Sketcher::SketchObject", "Sketch014")
sketch15.AttachmentSupport = (doc.getObject("XY_Plane003"), [""])
sketch15.MapMode = "FlatFace"
sketch15.AttachmentOffset = App.Placement(Vector(0, 0, 40), App.Rotation())
sketch15.addGeometry(Part.Circle(Vector(9.944762, -13.090853, 0), Vector(0, 0, 1), 0.5), False)
sketch15.addConstraint([
    Sketcher.Constraint("Diameter", 0, 1.0),
    Sketcher.Constraint("DistanceX", -1, 1, 0, 3, 9.944762),
    Sketcher.Constraint("DistanceY", 0, 3, -1, 1, 13.090853),
])
pad13 = body4.newObject("PartDesign::Pad", "Pad012")
pad13.Profile = sketch15
pad13.Length = 10
pad13.Reversed = True
body5 = doc.addObject("PartDesign::Body", "Body004")

# Sketch on XY plane
sketch16 = body5.newObject("Sketcher::SketchObject", "Sketch015")
sketch16.AttachmentSupport = (doc.getObject("XY_Plane004"), [""])
sketch16.MapMode = "FlatFace"
sketch16.AttachmentOffset = App.Placement(Vector(0, 0, 40), App.Rotation())
sketch16.addGeometry(Part.Circle(Vector(-11.285709, -3.669903, 0), Vector(0, 0, 1), 0.5), False)
sketch16.addConstraint([
    Sketcher.Constraint("Diameter", 0, 1.0),
    Sketcher.Constraint("DistanceX", 0, 3, -1, 1, 11.285709),
    Sketcher.Constraint("DistanceY", 0, 3, -1, 1, 3.669903),
])
pad14 = body5.newObject("PartDesign::Pad", "Pad013")
pad14.Profile = sketch16
pad14.Length = 10
pad14.Reversed = True
body6 = doc.addObject("PartDesign::Body", "Body005")

# Sketch on XY plane
sketch17 = body6.newObject("Sketcher::SketchObject", "Sketch016")
sketch17.AttachmentSupport = (doc.getObject("XY_Plane005"), [""])
sketch17.MapMode = "FlatFace"
sketch17.AttachmentOffset = App.Placement(Vector(0, 0, 40), App.Rotation())
sketch17.addGeometry(Part.Circle(Vector(2.714291, -3.669903, 0), Vector(0, 0, 1), 0.5), False)
sketch17.addConstraint([
    Sketcher.Constraint("Diameter", 0, 1.0),
    Sketcher.Constraint("DistanceX", -1, 1, 0, 3, 2.714291),
    Sketcher.Constraint("DistanceY", 0, 3, -1, 1, 3.669903),
])
pad15 = body6.newObject("PartDesign::Pad", "Pad014")
pad15.Profile = sketch17
pad15.Length = 10
pad15.Reversed = True
body7 = doc.addObject("PartDesign::Body", "Body006")

# Sketch on XY plane
sketch18 = body7.newObject("Sketcher::SketchObject", "Sketch017")
sketch18.AttachmentSupport = (doc.getObject("XY_Plane006"), [""])
sketch18.MapMode = "FlatFace"
sketch18.AttachmentOffset = App.Placement(Vector(0, 0, 40), App.Rotation())
sketch18.addGeometry(Part.Circle(Vector(16.714291, -3.669903, 0), Vector(0, 0, 1), 0.5), False)
sketch18.addConstraint([
    Sketcher.Constraint("Diameter", 0, 1.0),
    Sketcher.Constraint("DistanceX", -1, 1, 0, 3, 16.714291),
    Sketcher.Constraint("DistanceY", 0, 3, -1, 1, 3.669903),
])
pad16 = body7.newObject("PartDesign::Pad", "Pad015")
pad16.Profile = sketch18
pad16.Length = 10
pad16.Reversed = True
body8 = doc.addObject("PartDesign::Body", "Body007")

# Sketch on XY plane
sketch19 = body8.newObject("Sketcher::SketchObject", "Sketch018")
sketch19.AttachmentSupport = (doc.getObject("XY_Plane007"), [""])
sketch19.MapMode = "FlatFace"
sketch19.AttachmentOffset = App.Placement(Vector(0, 0, 40), App.Rotation())
sketch19.addGeometry(Part.Circle(Vector(-18.055238, 6.909147, 0), Vector(0, 0, 1), 0.5), False)
sketch19.addConstraint([
    Sketcher.Constraint("Diameter", 0, 1.0),
    Sketcher.Constraint("DistanceX", 0, 3, -1, 1, 18.055238),
    Sketcher.Constraint("DistanceY", -1, 1, 0, 3, 6.909147),
])
pad17 = body8.newObject("PartDesign::Pad", "Pad016")
pad17.Profile = sketch19
pad17.Length = 10
pad17.Reversed = True
body9 = doc.addObject("PartDesign::Body", "Body008")

# Sketch on XY plane
sketch20 = body9.newObject("Sketcher::SketchObject", "Sketch019")
sketch20.AttachmentSupport = (doc.getObject("XY_Plane008"), [""])
sketch20.MapMode = "FlatFace"
sketch20.AttachmentOffset = App.Placement(Vector(0, 0, 40), App.Rotation())
sketch20.addGeometry(Part.Circle(Vector(-4.055238, 6.909147, 0), Vector(0, 0, 1), 0.5), False)
sketch20.addConstraint([
    Sketcher.Constraint("Diameter", 0, 1.0),
    Sketcher.Constraint("DistanceX", 0, 3, -1, 1, 4.055238),
    Sketcher.Constraint("DistanceY", -1, 1, 0, 3, 6.909147),
])
pad18 = body9.newObject("PartDesign::Pad", "Pad017")
pad18.Profile = sketch20
pad18.Length = 10
pad18.Reversed = True
body10 = doc.addObject("PartDesign::Body", "Body009")

# Sketch on XY plane
sketch21 = body10.newObject("Sketcher::SketchObject", "Sketch020")
sketch21.AttachmentSupport = (doc.getObject("XY_Plane009"), [""])
sketch21.MapMode = "FlatFace"
sketch21.AttachmentOffset = App.Placement(Vector(0, 0, 40), App.Rotation())
sketch21.addGeometry(Part.Circle(Vector(9.944762, 6.909147, 0), Vector(0, 0, 1), 0.5), False)
sketch21.addConstraint([
    Sketcher.Constraint("Diameter", 0, 1.0),
    Sketcher.Constraint("DistanceX", -1, 1, 0, 3, 9.944762),
    Sketcher.Constraint("DistanceY", -1, 1, 0, 3, 6.909147),
])
pad19 = body10.newObject("PartDesign::Pad", "Pad018")
pad19.Profile = sketch21
pad19.Length = 10
pad19.Reversed = True
body11 = doc.addObject("PartDesign::Body", "Body010")

# Sketch on XY plane
sketch22 = body11.newObject("Sketcher::SketchObject", "Sketch021")
sketch22.AttachmentSupport = (doc.getObject("XY_Plane010"), [""])
sketch22.MapMode = "FlatFace"
sketch22.AttachmentOffset = App.Placement(Vector(0, 0, 40), App.Rotation())
sketch22.addGeometry(Part.Circle(Vector(-11.285709, 16.330097, 0), Vector(0, 0, 1), 0.5), False)
sketch22.addConstraint([
    Sketcher.Constraint("Diameter", 0, 1.0),
    Sketcher.Constraint("DistanceX", 0, 3, -1, 1, 11.285709),
    Sketcher.Constraint("DistanceY", -1, 1, 0, 3, 16.330097),
])
pad20 = body11.newObject("PartDesign::Pad", "Pad019")
pad20.Profile = sketch22
pad20.Length = 10
pad20.Reversed = True
body12 = doc.addObject("PartDesign::Body", "Body011")

# Sketch on XY plane
sketch23 = body12.newObject("Sketcher::SketchObject", "Sketch022")
sketch23.AttachmentSupport = (doc.getObject("XY_Plane011"), [""])
sketch23.MapMode = "FlatFace"
sketch23.AttachmentOffset = App.Placement(Vector(0, 0, 40), App.Rotation())
sketch23.addGeometry(Part.Circle(Vector(2.714291, 16.330097, 0), Vector(0, 0, 1), 0.5), False)
sketch23.addConstraint([
    Sketcher.Constraint("Diameter", 0, 1.0),
    Sketcher.Constraint("DistanceX", -1, 1, 0, 3, 2.714291),
    Sketcher.Constraint("DistanceY", -1, 1, 0, 3, 16.330097),
])
pad21 = body12.newObject("PartDesign::Pad", "Pad020")
pad21.Profile = sketch23
pad21.Length = 10
pad21.Reversed = True
body13 = doc.addObject("PartDesign::Body", "Body012")

# Sketch on XY plane
sketch24 = body13.newObject("Sketcher::SketchObject", "Sketch023")
sketch24.AttachmentSupport = (doc.getObject("XY_Plane012"), [""])
sketch24.MapMode = "FlatFace"
sketch24.AttachmentOffset = App.Placement(Vector(0, 0, 40), App.Rotation())
sketch24.addGeometry(Part.Circle(Vector(16.714291, 16.330097, 0), Vector(0, 0, 1), 0.5), False)
sketch24.addConstraint([
    Sketcher.Constraint("Diameter", 0, 1.0),
    Sketcher.Constraint("DistanceX", -1, 1, 0, 3, 16.714291),
    Sketcher.Constraint("DistanceY", -1, 1, 0, 3, 16.330097),
])
pad22 = body13.newObject("PartDesign::Pad", "Pad021")
pad22.Profile = sketch24
pad22.Length = 10
pad22.Reversed = True

doc.recompute()
